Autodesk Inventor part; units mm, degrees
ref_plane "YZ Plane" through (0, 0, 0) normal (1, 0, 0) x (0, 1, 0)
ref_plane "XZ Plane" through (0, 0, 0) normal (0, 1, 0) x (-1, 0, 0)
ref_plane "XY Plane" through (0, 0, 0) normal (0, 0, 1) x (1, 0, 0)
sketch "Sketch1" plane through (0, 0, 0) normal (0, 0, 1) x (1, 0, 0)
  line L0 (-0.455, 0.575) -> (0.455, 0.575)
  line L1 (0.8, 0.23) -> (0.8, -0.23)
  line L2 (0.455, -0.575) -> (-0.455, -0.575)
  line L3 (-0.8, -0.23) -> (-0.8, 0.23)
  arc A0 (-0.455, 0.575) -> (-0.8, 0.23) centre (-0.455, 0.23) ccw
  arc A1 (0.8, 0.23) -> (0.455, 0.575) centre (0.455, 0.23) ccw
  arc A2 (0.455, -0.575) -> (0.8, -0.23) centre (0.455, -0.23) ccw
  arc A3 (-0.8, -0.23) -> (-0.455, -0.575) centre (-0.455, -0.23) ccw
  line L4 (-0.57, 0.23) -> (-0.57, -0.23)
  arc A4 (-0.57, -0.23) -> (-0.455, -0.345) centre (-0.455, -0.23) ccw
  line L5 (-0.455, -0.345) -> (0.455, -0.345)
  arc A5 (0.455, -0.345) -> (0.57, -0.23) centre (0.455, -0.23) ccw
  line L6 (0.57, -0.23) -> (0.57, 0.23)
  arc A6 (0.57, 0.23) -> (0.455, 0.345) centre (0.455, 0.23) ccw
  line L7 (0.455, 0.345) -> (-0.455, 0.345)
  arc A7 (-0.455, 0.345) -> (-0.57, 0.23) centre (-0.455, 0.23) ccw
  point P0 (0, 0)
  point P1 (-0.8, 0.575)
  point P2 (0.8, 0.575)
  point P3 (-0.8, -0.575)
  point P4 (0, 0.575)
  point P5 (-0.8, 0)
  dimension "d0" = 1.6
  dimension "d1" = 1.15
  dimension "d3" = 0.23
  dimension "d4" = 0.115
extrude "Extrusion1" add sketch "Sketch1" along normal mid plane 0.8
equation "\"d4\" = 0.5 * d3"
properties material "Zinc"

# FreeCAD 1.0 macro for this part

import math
import FreeCAD as App
import Part
import Sketcher

V = App.Vector
Q = App.Units.Quantity

doc = App.newDocument("Part")
body = doc.addObject("PartDesign::Body", "Body")

sketch1 = body.newObject("Sketcher::SketchObject", "Sketch")
sketch1.AttachmentSupport = (doc.getObject("XY_Plane"), [""])
sketch1.MapMode = "FlatFace"
sketch1.addGeometry([
    Part.LineSegment(V(0.46, 0.57, 0), V(-0.46, 0.57, 0)),
    Part.ArcOfCircle(Part.Circle(V(-0.46, 0.23, 0), V(0, 0, 1), 0.34), math.radians(90), math.radians(180)),
    Part.LineSegment(V(-0.8, 0.23, 0), V(-0.8, -0.23, 0)),
    Part.ArcOfCircle(Part.Circle(V(-0.46, -0.23, 0), V(0, 0, 1), 0.35), math.radians(180), math.radians(270)),
    Part.LineSegment(V(-0.46, -0.57, 0), V(0.46, -0.57, 0)),
    Part.ArcOfCircle(Part.Circle(V(0.46, -0.23, 0), V(0, 0, 1), 0.34), math.radians(-90), math.radians(0)),
    Part.LineSegment(V(0.8, -0.23, 0), V(0.8, 0.23, 0)),
    Part.ArcOfCircle(Part.Circle(V(0.46, 0.23, 0), V(0, 0, 1), 0.35), math.radians(0), math.radians(90)),
    Part.LineSegment(V(-0.57, -0.23, 0), V(-0.57, 0.23, 0)),
    Part.ArcOfCircle(Part.Circle(V(-0.46, 0.23, 0), V(0, 0, 1), 0.11), math.radians(90), math.radians(180)),
    Part.LineSegment(V(-0.46, 0.34, 0), V(0.46, 0.34, 0)),
    Part.ArcOfCircle(Part.Circle(V(0.46, 0.23, 0), V(0, 0, 1), 0.11), math.radians(0), math.radians(90)),
    Part.LineSegment(V(0.57, 0.23, 0), V(0.57, -0.23, 0)),
    Part.ArcOfCircle(Part.Circle(V(0.46, -0.23, 0), V(0, 0, 1), 0.11), math.radians(-90), math.radians(0)),
    Part.LineSegment(V(0.46, -0.34, 0), V(-0.46, -0.34, 0)),
    Part.ArcOfCircle(Part.Circle(V(-0.46, -0.23, 0), V(0, 0, 1), 0.11), math.radians(180), math.radians(270)),
], False)
sketch1.addConstraint([
    Sketcher.Constraint("Tangent", 0, 2, 1, 1),
    Sketcher.Constraint("Tangent", 1, 2, 2, 1),
    Sketcher.Constraint("Tangent", 2, 2, 3, 1),
    Sketcher.Constraint("Tangent", 3, 2, 4, 1),
    Sketcher.Constraint("Tangent", 4, 2, 5, 1),
    Sketcher.Constraint("Tangent", 5, 2, 6, 1),
    Sketcher.Constraint("Tangent", 6, 2, 7, 1),
    Sketcher.Constraint("Tangent", 7, 2, 0, 1),
    Sketcher.Constraint("Tangent", 8, 2, 9, 2),
    Sketcher.Constraint("Tangent", 9, 1, 10, 1),
    Sketcher.Constraint("Tangent", 10, 2, 11, 2),
    Sketcher.Constraint("Tangent", 11, 1, 12, 1),
    Sketcher.Constraint("Tangent", 12, 2, 13, 2),
    Sketcher.Constraint("Tangent", 13, 1, 14, 1),
    Sketcher.Constraint("Tangent", 14, 2, 15, 2),
    Sketcher.Constraint("Tangent", 15, 1, 8, 1),
    Sketcher.Constraint("Horizontal", 0),
    Sketcher.Constraint("Vertical", 2),
    Sketcher.Constraint("Horizontal", 4),
    Sketcher.Constraint("Vertical", 6),
    Sketcher.Constraint("Vertical", 8),
    Sketcher.Constraint("Horizontal", 10),
    Sketcher.Constraint("Vertical", 12),
    Sketcher.Constraint("Horizontal", 14),
    Sketcher.Constraint("Coincident", 9, 3, 1, 3),
    Sketcher.Constraint("Coincident", 11, 3, 7, 3),
    Sketcher.Constraint("Coincident", 13, 3, 5, 3),
    Sketcher.Constraint("Equal", 1, 3),
    Sketcher.Constraint("Equal", 3, 5),
    Sketcher.Constraint("Equal", 5, 7),
    Sketcher.Constraint("Equal", 13, 15),
    Sketcher.Constraint("Symmetric", 1, 3, 5, 3, -1, 1),
    Sketcher.Constraint("Radius", 9, Q("0.115 mm")),
    Sketcher.Constraint("DistanceY", -1, 1, 1, 3, Q("0.23 mm")),
    Sketcher.Constraint("DistanceX", 1, 2, 8, 2, Q("0.23 mm")),
    Sketcher.Constraint("DistanceX", 0, 2, 0, 1, Q("0.91 mm")),
])
pad1 = body.newObject("PartDesign::Pad", "Pad")
pad1.Profile = sketch1
pad1.Length = 0.8
pad1.Midplane = True

doc.recompute()
